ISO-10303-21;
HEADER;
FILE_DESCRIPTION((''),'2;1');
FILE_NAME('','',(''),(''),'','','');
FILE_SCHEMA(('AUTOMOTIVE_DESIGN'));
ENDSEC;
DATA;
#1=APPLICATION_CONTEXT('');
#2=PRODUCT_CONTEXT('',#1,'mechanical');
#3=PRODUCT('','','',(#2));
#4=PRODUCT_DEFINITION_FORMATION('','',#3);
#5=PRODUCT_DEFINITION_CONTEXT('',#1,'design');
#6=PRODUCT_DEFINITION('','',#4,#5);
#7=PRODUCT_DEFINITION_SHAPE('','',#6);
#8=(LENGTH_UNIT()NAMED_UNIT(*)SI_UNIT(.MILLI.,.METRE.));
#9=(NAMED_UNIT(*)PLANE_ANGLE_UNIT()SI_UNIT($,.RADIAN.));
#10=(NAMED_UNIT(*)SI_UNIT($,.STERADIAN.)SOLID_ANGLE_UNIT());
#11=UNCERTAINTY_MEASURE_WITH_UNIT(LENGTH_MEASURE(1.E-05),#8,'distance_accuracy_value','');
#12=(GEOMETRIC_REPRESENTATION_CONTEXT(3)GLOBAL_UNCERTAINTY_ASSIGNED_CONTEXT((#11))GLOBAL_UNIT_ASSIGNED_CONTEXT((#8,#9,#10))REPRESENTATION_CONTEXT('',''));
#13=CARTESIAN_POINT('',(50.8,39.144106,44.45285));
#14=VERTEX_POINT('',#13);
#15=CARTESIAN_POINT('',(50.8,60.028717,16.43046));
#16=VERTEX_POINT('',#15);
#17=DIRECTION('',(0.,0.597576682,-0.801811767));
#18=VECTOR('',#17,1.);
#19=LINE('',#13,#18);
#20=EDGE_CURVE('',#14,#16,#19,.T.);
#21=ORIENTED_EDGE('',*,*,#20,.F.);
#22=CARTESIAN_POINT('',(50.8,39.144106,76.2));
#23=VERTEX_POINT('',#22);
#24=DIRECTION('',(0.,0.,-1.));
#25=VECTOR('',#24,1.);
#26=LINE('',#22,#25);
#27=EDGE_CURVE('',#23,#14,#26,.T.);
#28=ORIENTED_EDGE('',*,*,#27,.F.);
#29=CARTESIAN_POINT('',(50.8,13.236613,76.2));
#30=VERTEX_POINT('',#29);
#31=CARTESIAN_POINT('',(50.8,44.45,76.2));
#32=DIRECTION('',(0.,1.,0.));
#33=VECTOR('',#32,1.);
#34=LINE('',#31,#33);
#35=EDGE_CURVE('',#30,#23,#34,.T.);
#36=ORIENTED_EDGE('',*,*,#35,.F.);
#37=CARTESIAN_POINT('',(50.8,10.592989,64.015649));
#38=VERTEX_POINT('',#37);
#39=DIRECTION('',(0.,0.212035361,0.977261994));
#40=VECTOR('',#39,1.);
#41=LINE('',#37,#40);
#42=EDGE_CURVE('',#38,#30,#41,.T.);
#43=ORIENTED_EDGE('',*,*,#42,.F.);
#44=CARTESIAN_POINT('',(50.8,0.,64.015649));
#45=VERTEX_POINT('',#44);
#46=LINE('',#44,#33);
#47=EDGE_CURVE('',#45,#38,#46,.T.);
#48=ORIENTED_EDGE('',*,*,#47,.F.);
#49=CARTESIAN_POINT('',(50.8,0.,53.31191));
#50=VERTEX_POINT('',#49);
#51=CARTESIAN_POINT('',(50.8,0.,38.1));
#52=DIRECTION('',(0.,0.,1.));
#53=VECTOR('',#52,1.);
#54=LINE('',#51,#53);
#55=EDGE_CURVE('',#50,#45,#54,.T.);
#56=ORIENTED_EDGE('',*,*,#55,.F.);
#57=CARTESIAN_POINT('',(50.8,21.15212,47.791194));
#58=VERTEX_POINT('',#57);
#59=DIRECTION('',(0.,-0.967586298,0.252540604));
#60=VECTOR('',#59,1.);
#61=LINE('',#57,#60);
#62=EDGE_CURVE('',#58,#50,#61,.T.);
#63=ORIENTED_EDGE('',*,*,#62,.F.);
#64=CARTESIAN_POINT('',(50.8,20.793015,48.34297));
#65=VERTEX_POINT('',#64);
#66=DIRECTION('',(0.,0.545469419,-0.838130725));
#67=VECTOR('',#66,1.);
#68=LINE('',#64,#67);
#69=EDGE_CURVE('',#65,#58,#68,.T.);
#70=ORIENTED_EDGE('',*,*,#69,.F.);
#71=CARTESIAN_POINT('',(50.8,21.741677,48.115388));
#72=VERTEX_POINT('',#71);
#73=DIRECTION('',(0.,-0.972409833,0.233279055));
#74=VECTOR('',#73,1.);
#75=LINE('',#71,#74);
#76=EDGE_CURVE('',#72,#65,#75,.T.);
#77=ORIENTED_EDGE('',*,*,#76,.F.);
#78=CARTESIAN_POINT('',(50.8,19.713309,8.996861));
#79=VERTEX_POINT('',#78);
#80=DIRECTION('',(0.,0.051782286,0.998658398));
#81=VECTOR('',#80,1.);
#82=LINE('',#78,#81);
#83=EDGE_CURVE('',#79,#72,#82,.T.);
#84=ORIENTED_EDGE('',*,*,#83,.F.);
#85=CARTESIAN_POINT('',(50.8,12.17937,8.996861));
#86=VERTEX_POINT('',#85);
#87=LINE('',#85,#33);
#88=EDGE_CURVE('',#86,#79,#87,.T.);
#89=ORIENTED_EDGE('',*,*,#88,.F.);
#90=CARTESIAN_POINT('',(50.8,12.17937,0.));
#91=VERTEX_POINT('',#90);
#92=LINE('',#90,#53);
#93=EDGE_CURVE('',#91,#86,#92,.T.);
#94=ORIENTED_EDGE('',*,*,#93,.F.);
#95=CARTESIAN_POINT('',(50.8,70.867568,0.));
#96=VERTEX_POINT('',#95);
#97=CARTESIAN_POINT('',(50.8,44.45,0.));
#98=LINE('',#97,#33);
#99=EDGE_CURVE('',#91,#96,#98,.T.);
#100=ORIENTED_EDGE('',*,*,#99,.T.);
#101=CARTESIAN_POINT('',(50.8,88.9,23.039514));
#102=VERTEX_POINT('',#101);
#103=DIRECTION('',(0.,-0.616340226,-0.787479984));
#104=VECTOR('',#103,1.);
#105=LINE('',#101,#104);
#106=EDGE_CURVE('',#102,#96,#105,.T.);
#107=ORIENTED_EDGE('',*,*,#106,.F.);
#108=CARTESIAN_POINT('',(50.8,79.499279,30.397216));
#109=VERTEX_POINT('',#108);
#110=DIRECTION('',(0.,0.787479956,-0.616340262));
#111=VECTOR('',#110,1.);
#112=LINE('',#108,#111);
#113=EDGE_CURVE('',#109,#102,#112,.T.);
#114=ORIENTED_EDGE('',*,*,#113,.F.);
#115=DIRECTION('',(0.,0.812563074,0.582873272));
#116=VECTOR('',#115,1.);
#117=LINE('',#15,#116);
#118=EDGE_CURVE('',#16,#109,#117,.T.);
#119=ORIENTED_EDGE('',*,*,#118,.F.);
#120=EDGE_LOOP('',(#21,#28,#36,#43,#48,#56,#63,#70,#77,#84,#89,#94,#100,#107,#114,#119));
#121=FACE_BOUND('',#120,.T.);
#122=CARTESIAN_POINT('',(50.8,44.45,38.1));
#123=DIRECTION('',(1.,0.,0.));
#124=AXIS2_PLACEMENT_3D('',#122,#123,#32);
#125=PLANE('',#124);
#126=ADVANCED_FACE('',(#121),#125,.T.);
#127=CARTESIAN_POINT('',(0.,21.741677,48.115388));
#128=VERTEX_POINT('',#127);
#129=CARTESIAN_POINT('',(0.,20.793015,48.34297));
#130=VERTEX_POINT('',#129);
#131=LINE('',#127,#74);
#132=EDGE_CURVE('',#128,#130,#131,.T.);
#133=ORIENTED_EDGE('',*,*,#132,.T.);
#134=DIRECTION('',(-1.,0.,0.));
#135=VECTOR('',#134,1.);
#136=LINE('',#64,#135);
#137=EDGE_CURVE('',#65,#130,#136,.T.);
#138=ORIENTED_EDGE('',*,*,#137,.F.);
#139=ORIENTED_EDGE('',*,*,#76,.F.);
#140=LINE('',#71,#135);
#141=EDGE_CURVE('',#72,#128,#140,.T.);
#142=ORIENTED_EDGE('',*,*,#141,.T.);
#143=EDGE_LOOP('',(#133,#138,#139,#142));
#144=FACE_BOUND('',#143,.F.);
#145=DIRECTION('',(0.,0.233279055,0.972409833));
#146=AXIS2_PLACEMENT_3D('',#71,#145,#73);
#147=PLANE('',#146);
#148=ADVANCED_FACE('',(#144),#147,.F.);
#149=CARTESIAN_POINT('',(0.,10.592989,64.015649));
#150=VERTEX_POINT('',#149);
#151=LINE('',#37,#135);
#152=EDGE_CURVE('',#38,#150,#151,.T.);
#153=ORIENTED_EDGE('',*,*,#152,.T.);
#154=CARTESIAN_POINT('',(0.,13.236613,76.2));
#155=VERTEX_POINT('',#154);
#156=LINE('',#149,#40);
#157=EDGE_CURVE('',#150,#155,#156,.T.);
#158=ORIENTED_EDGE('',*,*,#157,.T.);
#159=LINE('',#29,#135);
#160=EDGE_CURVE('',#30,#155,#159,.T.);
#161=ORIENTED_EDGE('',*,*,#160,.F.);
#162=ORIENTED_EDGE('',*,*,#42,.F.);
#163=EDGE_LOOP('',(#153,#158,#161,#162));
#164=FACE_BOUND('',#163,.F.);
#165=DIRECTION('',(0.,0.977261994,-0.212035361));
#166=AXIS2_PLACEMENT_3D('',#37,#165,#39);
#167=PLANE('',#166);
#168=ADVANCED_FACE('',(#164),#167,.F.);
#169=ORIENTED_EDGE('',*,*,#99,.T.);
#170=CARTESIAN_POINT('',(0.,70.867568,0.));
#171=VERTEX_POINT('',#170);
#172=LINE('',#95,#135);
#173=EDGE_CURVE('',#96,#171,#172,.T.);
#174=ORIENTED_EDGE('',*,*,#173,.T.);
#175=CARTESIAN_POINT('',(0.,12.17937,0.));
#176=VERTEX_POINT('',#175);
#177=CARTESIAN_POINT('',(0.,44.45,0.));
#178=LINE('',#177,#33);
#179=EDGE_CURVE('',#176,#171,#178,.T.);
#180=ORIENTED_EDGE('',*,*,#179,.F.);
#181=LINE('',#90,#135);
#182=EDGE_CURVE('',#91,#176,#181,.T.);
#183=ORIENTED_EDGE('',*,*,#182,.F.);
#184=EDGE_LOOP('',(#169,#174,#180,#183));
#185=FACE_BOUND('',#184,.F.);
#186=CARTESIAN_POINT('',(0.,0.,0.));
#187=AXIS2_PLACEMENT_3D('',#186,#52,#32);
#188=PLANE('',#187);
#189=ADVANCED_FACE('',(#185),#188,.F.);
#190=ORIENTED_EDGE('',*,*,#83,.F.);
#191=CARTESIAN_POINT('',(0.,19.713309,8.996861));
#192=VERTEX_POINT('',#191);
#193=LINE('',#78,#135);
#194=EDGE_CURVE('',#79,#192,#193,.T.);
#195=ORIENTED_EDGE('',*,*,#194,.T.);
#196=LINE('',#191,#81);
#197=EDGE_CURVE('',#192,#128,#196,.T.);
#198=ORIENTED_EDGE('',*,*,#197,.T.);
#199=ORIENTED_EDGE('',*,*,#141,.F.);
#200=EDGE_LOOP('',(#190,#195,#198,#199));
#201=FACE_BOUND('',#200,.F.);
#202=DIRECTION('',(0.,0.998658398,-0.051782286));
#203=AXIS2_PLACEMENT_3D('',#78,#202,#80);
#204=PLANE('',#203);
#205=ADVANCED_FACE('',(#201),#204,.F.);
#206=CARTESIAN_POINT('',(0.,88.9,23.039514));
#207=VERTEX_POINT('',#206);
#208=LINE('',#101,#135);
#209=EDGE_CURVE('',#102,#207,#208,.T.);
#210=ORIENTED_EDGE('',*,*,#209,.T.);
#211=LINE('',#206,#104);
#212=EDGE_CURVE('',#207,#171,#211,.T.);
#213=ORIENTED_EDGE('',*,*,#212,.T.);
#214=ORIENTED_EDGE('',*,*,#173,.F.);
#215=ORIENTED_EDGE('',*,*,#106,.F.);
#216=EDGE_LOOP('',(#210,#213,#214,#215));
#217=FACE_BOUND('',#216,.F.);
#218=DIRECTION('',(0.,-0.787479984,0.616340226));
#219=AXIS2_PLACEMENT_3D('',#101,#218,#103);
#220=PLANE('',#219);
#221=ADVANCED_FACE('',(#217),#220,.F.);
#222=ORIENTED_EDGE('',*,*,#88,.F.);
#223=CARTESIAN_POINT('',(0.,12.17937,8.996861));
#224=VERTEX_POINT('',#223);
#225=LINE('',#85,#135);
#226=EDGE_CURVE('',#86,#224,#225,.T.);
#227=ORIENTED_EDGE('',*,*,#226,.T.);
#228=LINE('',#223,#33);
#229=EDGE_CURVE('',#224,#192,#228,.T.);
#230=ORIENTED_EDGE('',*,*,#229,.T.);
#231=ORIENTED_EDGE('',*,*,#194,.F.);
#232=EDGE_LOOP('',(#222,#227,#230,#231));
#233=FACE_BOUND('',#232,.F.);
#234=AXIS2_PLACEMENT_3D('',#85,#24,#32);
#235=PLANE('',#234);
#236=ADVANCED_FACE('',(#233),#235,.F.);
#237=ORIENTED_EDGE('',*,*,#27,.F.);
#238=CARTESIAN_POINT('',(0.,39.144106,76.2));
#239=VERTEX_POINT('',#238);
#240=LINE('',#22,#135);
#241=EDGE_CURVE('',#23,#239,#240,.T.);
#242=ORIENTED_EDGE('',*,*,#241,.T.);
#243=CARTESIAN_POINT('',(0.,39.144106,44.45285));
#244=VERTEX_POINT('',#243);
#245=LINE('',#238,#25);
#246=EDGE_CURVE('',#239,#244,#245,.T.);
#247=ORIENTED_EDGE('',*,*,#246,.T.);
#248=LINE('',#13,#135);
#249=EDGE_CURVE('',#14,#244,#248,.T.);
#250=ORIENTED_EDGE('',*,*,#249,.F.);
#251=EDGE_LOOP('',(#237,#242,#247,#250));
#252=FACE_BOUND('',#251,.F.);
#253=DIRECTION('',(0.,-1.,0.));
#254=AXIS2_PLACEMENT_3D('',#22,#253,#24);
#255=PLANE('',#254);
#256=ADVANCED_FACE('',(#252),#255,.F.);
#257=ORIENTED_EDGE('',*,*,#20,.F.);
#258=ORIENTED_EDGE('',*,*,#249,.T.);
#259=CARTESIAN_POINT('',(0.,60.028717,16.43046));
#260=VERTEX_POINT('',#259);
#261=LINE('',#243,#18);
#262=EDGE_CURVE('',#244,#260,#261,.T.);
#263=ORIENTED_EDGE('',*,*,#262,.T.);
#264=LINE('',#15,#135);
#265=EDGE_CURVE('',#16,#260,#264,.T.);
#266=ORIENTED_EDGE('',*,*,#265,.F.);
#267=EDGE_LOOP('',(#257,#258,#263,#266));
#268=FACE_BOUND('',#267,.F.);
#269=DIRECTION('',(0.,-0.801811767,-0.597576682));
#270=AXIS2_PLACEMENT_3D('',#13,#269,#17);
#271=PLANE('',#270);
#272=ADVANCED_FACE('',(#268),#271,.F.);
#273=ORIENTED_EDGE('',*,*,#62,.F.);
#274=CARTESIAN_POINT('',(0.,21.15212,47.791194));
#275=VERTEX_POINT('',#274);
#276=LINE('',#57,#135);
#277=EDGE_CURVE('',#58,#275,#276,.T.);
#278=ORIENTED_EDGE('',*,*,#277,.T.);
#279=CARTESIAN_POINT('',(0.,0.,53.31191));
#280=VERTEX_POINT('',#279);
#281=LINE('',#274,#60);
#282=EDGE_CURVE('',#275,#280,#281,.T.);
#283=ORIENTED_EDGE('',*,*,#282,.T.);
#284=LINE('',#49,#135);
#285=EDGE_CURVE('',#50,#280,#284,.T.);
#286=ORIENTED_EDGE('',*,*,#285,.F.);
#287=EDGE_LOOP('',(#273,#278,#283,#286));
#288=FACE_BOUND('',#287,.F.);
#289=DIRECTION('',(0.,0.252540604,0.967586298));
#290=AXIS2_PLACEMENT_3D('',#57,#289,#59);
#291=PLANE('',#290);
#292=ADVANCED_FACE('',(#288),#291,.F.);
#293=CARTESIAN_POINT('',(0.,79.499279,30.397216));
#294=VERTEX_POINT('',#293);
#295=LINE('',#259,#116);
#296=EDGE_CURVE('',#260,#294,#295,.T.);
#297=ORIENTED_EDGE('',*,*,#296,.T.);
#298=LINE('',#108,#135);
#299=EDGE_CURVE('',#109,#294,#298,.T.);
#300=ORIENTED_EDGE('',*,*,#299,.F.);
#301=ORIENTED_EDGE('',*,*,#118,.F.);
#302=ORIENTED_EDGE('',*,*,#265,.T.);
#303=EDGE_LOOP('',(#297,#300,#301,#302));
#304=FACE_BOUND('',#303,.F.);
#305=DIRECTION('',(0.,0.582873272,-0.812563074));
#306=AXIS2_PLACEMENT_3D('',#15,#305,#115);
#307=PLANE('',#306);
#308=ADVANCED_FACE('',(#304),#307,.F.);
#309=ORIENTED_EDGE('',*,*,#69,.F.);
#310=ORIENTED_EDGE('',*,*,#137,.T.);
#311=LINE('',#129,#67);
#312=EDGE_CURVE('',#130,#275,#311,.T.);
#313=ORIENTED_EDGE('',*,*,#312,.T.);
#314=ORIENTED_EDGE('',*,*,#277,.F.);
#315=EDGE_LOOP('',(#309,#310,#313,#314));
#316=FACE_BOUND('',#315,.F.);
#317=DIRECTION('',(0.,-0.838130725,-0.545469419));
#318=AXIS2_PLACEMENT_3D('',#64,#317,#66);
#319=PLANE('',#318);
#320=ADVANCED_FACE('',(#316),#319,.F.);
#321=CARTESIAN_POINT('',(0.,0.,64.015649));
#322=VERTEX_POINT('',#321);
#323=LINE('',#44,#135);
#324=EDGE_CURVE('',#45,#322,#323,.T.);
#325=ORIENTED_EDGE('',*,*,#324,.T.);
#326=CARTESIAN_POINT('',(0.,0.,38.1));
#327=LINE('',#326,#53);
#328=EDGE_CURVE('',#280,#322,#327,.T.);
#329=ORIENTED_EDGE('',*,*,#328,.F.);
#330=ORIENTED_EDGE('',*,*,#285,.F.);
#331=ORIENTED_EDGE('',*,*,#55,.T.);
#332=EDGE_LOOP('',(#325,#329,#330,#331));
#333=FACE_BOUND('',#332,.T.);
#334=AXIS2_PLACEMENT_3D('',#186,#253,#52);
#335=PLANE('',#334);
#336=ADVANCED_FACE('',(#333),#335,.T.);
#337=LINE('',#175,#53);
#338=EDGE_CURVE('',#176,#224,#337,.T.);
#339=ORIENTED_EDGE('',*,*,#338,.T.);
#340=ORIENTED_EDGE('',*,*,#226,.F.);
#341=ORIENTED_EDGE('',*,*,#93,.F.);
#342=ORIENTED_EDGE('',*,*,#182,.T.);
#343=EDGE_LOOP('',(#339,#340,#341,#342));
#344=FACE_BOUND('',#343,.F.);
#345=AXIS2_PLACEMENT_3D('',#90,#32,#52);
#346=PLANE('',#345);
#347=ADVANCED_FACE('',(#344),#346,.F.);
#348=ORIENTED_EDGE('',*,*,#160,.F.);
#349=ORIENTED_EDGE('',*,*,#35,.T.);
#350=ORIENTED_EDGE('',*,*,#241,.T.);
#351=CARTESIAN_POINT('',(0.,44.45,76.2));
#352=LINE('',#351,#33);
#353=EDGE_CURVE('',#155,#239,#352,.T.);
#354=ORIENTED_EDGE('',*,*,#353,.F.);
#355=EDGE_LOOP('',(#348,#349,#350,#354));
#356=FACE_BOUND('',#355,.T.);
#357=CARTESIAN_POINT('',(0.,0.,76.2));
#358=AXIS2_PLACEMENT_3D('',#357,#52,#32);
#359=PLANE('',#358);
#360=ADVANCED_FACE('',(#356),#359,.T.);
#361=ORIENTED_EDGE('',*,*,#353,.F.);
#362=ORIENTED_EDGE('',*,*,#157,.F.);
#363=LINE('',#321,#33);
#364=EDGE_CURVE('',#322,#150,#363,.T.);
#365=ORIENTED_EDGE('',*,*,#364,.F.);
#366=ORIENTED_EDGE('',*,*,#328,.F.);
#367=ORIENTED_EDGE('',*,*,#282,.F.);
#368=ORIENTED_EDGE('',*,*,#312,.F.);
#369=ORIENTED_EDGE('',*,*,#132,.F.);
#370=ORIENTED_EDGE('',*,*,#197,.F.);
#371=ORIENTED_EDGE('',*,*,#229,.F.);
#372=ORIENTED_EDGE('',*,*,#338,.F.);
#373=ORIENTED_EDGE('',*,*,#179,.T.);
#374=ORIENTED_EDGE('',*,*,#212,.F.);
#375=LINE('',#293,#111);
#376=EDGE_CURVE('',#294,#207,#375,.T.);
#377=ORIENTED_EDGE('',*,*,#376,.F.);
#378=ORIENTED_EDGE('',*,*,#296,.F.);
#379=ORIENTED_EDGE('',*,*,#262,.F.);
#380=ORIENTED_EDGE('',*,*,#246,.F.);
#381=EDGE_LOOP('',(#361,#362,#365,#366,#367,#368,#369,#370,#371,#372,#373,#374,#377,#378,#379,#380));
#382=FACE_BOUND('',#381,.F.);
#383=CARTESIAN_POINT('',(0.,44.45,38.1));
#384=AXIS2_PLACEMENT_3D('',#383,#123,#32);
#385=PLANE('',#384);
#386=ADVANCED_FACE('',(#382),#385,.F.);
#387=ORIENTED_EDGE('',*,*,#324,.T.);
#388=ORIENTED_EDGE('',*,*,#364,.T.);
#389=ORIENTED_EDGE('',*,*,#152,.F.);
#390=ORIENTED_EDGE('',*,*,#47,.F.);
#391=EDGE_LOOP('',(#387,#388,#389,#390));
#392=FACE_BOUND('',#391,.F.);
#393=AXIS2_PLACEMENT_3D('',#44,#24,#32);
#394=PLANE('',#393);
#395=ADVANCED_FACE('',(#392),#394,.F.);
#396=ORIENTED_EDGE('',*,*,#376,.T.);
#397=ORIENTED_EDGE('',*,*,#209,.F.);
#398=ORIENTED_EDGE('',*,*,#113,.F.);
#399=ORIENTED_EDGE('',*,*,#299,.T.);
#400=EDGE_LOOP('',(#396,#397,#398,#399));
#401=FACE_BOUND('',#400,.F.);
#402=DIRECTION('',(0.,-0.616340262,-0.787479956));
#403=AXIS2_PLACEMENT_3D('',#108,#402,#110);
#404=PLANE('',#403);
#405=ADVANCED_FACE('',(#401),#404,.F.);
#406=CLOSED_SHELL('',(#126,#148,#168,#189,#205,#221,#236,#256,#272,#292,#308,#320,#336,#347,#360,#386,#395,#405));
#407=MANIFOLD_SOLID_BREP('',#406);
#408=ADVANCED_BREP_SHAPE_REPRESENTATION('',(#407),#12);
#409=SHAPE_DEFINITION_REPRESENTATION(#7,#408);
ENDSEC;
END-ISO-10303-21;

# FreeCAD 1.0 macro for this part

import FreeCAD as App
import Part
import Sketcher
from FreeCAD import Vector
Q = App.Units.Quantity

doc = App.newDocument("Part")
params = doc.addObject("Spreadsheet::Sheet", "Params")
for row, (alias, value) in enumerate([
    ("sketch1_height", "3 in"),
    ("sketch1_width", "3.5 in"),
    ("pad1_length", "2 in"),
    ("pocket1_length", "2 in"),
    ("pocket2_length", "2 in"),
], start=1):
    params.set(f"A{row}", alias)
    params.set(f"B{row}", "=" + value)
    params.setAlias(f"B{row}", alias)

body = doc.addObject("PartDesign::Body", "Body")

sketch1 = body.newObject("Sketcher::SketchObject", "Sketch")
sketch1.AttachmentSupport = (doc.getObject("YZ_Plane"), [""])
sketch1.MapMode = "FlatFace"
sketch1.addGeometry([
    Part.LineSegment(Vector(0, 76, 0), Vector(0, 0, 0)),
    Part.LineSegment(Vector(0, 0, 0), Vector(89, 0, 0)),
    Part.LineSegment(Vector(89, 0, 0), Vector(89, 76, 0)),
    Part.LineSegment(Vector(89, 76, 0), Vector(0, 76, 0)),
], False)
sketch1.addConstraint([
    Sketcher.Constraint("Coincident", 0, 2, 1, 1),
    Sketcher.Constraint("Coincident", 1, 2, 2, 1),
    Sketcher.Constraint("Coincident", 2, 2, 3, 1),
    Sketcher.Constraint("Coincident", 3, 2, 0, 1),
    Sketcher.Constraint("Vertical", 0),
    Sketcher.Constraint("Horizontal", 1),
    Sketcher.Constraint("Vertical", 2),
    Sketcher.Constraint("Horizontal", 3),
    Sketcher.Constraint("Coincident", 0, 2, -1, 1),
    Sketcher.Constraint("DistanceY", 0, 2, 0, 1, Q("3 in")),
    Sketcher.Constraint("DistanceX", 1, 1, 1, 2, Q("3.5 in")),
])
sketch1.setExpression("Constraints[9]", "Params.sketch1_height")
sketch1.setExpression("Constraints[10]", "Params.sketch1_width")
pad1 = body.newObject("PartDesign::Pad", "Pad")
pad1.Profile = sketch1
pad1.setExpression("Length", "Params.pad1_length")

sketch2 = body.newObject("Sketcher::SketchObject", "Sketch001")
sketch2.AttachmentSupport = (doc.getObject("YZ_Plane"), [""])
sketch2.MapMode = "FlatFace"
sketch2.AttachmentOffset = App.Placement(Vector(0, 0, 2 * 25.4), App.Rotation())
sketch2.addGeometry([
    Part.LineSegment(Vector(0, 76, 0), Vector(0, 64, 0)),
    Part.LineSegment(Vector(0, 64, 0), Vector(11, 64, 0)),
    Part.LineSegment(Vector(11, 64, 0), Vector(13, 76, 0)),
    Part.LineSegment(Vector(13, 76, 0), Vector(0, 76, 0)),
    Part.LineSegment(Vector(89, 76, 0), Vector(39, 76, 0)),
    Part.LineSegment(Vector(39, 76, 0), Vector(39, 44, 0)),
    Part.LineSegment(Vector(39, 44, 0), Vector(60, 16, 0)),
    Part.LineSegment(Vector(60, 16, 0), Vector(79, 30, 0)),
    Part.LineSegment(Vector(79, 30, 0), Vector(89, 23, 0)),
    Part.LineSegment(Vector(89, 23, 0), Vector(89, 76, 0)),
    Part.LineSegment(Vector(89, 23, 0), Vector(71, 0, 0)),
    Part.LineSegment(Vector(71, 0, 0), Vector(89, 0, 0)),
    Part.LineSegment(Vector(89, 0, 0), Vector(89, 23, 0)),
], False)
sketch2.addConstraint([
    Sketcher.Constraint("Coincident", 0, 2, 1, 1),
    Sketcher.Constraint("Coincident", 1, 2, 2, 1),
    Sketcher.Constraint("Coincident", 2, 2, 3, 1),
    Sketcher.Constraint("Coincident", 3, 2, 0, 1),
    Sketcher.Constraint("Coincident", 4, 2, 5, 1),
    Sketcher.Constraint("Coincident", 5, 2, 6, 1),
    Sketcher.Constraint("Coincident", 6, 2, 7, 1),
    Sketcher.Constraint("Coincident", 7, 2, 8, 1),
    Sketcher.Constraint("Coincident", 8, 2, 9, 1),
    Sketcher.Constraint("Coincident", 9, 2, 4, 1),
    Sketcher.Constraint("Coincident", 10, 2, 11, 1),
    Sketcher.Constraint("Coincident", 11, 2, 12, 1),
    Sketcher.Constraint("Coincident", 12, 2, 10, 1),
    Sketcher.Constraint("Vertical", 0),
    Sketcher.Constraint("Horizontal", 1),
    Sketcher.Constraint("Horizontal", 3),
    Sketcher.Constraint("Horizontal", 4),
    Sketcher.Constraint("Vertical", 5),
    Sketcher.Constraint("Vertical", 9),
    Sketcher.Constraint("Horizontal", 11),
    Sketcher.Constraint("Vertical", 12),
    Sketcher.Constraint("Coincident", 12, 2, 8, 2),
    Sketcher.Constraint("PointOnObject", 0, 2, -2),
    Sketcher.Constraint("PointOnObject", 10, 2, -1),
    Sketcher.Constraint("Perpendicular", 8, 10),
    Sketcher.Constraint("Horizontal", 3, 2, 4, 2),
    Sketcher.Constraint("DistanceY", -1, 1, 2, 2, Q("3 in")),
    Sketcher.Constraint("DistanceX", -1, 1, 8, 2, Q("3.5 in")),
    Sketcher.Constraint("DistanceX", 1, 1, 1, 2, Q("10.592989 mm")),
    Sketcher.Constraint("DistanceX", 11, 1, 11, 2, Q("18.032432 mm")),
    Sketcher.Constraint("DistanceY", 0, 2, 0, 1, Q("12.184351 mm")),
    Sketcher.Constraint("DistanceY", 5, 2, 5, 1, Q("31.74715 mm")),
    Sketcher.Constraint("DistanceY", 8, 2, 7, 2, Q("7.357702 mm")),
    Sketcher.Constraint("Distance", 6, Q("34.948839 mm")),
    Sketcher.Constraint("Distance", 7, Q("23.961908 mm")),
    Sketcher.Constraint("Distance", 10, Q("29.257269 mm")),
    Sketcher.Constraint("DistanceX", 3, 2, 3, 1, Q("13.236613 mm")),
    Sketcher.Constraint("DistanceX", 4, 2, 4, 1, Q("49.755894 mm")),
])
pocket1 = body.newObject("PartDesign::Pocket", "Pocket")
pocket1.Profile = sketch2
pocket1.setExpression("Length", "Params.pocket1_length")

sketch3 = body.newObject("Sketcher::SketchObject", "Sketch002")
sketch3.AttachmentSupport = (doc.getObject("YZ_Plane"), [""])
sketch3.MapMode = "FlatFace"
sketch3.AttachmentOffset = App.Placement(Vector(0, 0, 2 * 25.4), App.Rotation())
sketch3.addGeometry([
    Part.LineSegment(Vector(21.2, 47.8, 0), Vector(0, 53.3, 0)),
    Part.LineSegment(Vector(0, 53.3, 0), Vector(0, 0, 0)),
    Part.LineSegment(Vector(0, 0, 0), Vector(12.2, 0, 0)),
    Part.LineSegment(Vector(12.2, 0, 0), Vector(12.2, 9, 0)),
    Part.LineSegment(Vector(12.2, 9, 0), Vector(19.7, 9, 0)),
    Part.LineSegment(Vector(19.7, 9, 0), Vector(21.7, 48.1, 0)),
    Part.LineSegment(Vector(21.7, 48.1, 0), Vector(20.8, 48.3, 0)),
    Part.LineSegment(Vector(20.8, 48.3, 0), Vector(21.2, 47.8, 0)),
], False)
sketch3.addConstraint([
    Sketcher.Constraint("Coincident", 0, 2, 1, 1),
    Sketcher.Constraint("Coincident", 1, 2, 2, 1),
    Sketcher.Constraint("Coincident", 2, 2, 3, 1),
    Sketcher.Constraint("Coincident", 3, 2, 4, 1),
    Sketcher.Constraint("Coincident", 4, 2, 5, 1),
    Sketcher.Constraint("Coincident", 5, 2, 6, 1),
    Sketcher.Constraint("Coincident", 6, 2, 7, 1),
    Sketcher.Constraint("Coincident", 7, 2, 0, 1),
    Sketcher.Constraint("Vertical", 1),
    Sketcher.Constraint("Horizontal", 2),
    Sketcher.Constraint("Vertical", 3),
    Sketcher.Constraint("Horizontal", 4),
    Sketcher.Constraint("Coincident", 1, 2, -1, 1),
    Sketcher.Constraint("DistanceX", 2, 1, 2, 2, Q("12.17937 mm")),
    Sketcher.Constraint("DistanceX", 4, 1, 4, 2, Q("7.533939 mm")),
    Sketcher.Constraint("DistanceY", 1, 2, 1, 1, Q("53.31191 mm")),
    Sketcher.Constraint("DistanceY", 3, 1, 3, 2, Q("8.996861 mm")),
    Sketcher.Constraint("Distance", 5, Q("39.171079 mm")),
    Sketcher.Constraint("Distance", 6, Q("0.975578 mm")),
    Sketcher.Constraint("Distance", 7, Q("0.658341 mm")),
    Sketcher.Constraint("DistanceY", -1, 1, 5, 2, Q("48.115388 mm")),
    Sketcher.Constraint("DistanceY", -1, 1, 6, 2, Q("48.34297 mm")),
    Sketcher.Constraint("DistanceX", -1, 1, 7, 2, Q("21.15212 mm")),
])
pocket2 = body.newObject("PartDesign::Pocket", "Pocket001")
pocket2.Profile = sketch3
pocket2.setExpression("Length", "Params.pocket2_length")

doc.recompute()
